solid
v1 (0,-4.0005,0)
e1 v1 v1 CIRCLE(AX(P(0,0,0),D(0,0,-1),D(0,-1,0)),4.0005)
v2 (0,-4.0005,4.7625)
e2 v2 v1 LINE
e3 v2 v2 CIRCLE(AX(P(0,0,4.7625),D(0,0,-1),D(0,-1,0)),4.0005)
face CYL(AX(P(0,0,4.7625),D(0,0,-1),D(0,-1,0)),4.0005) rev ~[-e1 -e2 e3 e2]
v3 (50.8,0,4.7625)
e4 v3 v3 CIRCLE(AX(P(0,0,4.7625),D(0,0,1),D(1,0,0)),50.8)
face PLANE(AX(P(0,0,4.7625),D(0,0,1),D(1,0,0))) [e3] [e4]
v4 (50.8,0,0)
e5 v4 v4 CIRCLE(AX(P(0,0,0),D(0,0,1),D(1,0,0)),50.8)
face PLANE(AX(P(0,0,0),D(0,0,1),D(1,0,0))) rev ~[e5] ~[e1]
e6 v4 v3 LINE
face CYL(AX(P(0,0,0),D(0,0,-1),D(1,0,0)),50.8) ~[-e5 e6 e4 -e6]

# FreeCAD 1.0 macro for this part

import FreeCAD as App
import Part
import Sketcher
Q = App.Units.Quantity

doc = App.newDocument("Part")
body = doc.addObject("PartDesign::Body", "Body")

sketch1 = body.newObject("Sketcher::SketchObject", "Sketch")
sketch1.AttachmentSupport = (doc.getObject("XY_Plane"), [""])
sketch1.MapMode = "FlatFace"
sketch1.addGeometry(Part.Circle(App.Vector(0, 0, 0), App.Vector(0, 0, 1), 51), False)
sketch1.addConstraint(Sketcher.Constraint("Coincident", 0, 3, -1, 1))
sketch1.addConstraint(Sketcher.Constraint("Diameter", 0, Q("4 in")))
pad1 = body.newObject("PartDesign::Pad", "Pad")
pad1.Profile = sketch1
pad1.Length = Q("0.1875 in")

sketch2 = body.newObject("Sketcher::SketchObject", "Sketch001")
sketch2.AttachmentSupport = (doc.getObject("XY_Plane"), [""])
sketch2.MapMode = "FlatFace"
sketch2.AttachmentOffset = App.Placement(App.Vector(0, 0, 0.1875 * 25.4), App.Rotation())
sketch2.addGeometry(Part.Circle(App.Vector(0, 0, 0), App.Vector(0, 0, 1), 4), False)
sketch2.addConstraint(Sketcher.Constraint("Coincident", 0, 3, -1, 1))
sketch2.addConstraint(Sketcher.Constraint("Diameter", 0, Q("0.315 in")))
doc.recompute()
hole = body.newObject("PartDesign::Hole", "Hole")
hole.Profile = sketch2
hole.ThreadType = "None"
hole.Diameter = Q("0.315 in")
hole.DepthType = "ThroughAll"

doc.recompute()
